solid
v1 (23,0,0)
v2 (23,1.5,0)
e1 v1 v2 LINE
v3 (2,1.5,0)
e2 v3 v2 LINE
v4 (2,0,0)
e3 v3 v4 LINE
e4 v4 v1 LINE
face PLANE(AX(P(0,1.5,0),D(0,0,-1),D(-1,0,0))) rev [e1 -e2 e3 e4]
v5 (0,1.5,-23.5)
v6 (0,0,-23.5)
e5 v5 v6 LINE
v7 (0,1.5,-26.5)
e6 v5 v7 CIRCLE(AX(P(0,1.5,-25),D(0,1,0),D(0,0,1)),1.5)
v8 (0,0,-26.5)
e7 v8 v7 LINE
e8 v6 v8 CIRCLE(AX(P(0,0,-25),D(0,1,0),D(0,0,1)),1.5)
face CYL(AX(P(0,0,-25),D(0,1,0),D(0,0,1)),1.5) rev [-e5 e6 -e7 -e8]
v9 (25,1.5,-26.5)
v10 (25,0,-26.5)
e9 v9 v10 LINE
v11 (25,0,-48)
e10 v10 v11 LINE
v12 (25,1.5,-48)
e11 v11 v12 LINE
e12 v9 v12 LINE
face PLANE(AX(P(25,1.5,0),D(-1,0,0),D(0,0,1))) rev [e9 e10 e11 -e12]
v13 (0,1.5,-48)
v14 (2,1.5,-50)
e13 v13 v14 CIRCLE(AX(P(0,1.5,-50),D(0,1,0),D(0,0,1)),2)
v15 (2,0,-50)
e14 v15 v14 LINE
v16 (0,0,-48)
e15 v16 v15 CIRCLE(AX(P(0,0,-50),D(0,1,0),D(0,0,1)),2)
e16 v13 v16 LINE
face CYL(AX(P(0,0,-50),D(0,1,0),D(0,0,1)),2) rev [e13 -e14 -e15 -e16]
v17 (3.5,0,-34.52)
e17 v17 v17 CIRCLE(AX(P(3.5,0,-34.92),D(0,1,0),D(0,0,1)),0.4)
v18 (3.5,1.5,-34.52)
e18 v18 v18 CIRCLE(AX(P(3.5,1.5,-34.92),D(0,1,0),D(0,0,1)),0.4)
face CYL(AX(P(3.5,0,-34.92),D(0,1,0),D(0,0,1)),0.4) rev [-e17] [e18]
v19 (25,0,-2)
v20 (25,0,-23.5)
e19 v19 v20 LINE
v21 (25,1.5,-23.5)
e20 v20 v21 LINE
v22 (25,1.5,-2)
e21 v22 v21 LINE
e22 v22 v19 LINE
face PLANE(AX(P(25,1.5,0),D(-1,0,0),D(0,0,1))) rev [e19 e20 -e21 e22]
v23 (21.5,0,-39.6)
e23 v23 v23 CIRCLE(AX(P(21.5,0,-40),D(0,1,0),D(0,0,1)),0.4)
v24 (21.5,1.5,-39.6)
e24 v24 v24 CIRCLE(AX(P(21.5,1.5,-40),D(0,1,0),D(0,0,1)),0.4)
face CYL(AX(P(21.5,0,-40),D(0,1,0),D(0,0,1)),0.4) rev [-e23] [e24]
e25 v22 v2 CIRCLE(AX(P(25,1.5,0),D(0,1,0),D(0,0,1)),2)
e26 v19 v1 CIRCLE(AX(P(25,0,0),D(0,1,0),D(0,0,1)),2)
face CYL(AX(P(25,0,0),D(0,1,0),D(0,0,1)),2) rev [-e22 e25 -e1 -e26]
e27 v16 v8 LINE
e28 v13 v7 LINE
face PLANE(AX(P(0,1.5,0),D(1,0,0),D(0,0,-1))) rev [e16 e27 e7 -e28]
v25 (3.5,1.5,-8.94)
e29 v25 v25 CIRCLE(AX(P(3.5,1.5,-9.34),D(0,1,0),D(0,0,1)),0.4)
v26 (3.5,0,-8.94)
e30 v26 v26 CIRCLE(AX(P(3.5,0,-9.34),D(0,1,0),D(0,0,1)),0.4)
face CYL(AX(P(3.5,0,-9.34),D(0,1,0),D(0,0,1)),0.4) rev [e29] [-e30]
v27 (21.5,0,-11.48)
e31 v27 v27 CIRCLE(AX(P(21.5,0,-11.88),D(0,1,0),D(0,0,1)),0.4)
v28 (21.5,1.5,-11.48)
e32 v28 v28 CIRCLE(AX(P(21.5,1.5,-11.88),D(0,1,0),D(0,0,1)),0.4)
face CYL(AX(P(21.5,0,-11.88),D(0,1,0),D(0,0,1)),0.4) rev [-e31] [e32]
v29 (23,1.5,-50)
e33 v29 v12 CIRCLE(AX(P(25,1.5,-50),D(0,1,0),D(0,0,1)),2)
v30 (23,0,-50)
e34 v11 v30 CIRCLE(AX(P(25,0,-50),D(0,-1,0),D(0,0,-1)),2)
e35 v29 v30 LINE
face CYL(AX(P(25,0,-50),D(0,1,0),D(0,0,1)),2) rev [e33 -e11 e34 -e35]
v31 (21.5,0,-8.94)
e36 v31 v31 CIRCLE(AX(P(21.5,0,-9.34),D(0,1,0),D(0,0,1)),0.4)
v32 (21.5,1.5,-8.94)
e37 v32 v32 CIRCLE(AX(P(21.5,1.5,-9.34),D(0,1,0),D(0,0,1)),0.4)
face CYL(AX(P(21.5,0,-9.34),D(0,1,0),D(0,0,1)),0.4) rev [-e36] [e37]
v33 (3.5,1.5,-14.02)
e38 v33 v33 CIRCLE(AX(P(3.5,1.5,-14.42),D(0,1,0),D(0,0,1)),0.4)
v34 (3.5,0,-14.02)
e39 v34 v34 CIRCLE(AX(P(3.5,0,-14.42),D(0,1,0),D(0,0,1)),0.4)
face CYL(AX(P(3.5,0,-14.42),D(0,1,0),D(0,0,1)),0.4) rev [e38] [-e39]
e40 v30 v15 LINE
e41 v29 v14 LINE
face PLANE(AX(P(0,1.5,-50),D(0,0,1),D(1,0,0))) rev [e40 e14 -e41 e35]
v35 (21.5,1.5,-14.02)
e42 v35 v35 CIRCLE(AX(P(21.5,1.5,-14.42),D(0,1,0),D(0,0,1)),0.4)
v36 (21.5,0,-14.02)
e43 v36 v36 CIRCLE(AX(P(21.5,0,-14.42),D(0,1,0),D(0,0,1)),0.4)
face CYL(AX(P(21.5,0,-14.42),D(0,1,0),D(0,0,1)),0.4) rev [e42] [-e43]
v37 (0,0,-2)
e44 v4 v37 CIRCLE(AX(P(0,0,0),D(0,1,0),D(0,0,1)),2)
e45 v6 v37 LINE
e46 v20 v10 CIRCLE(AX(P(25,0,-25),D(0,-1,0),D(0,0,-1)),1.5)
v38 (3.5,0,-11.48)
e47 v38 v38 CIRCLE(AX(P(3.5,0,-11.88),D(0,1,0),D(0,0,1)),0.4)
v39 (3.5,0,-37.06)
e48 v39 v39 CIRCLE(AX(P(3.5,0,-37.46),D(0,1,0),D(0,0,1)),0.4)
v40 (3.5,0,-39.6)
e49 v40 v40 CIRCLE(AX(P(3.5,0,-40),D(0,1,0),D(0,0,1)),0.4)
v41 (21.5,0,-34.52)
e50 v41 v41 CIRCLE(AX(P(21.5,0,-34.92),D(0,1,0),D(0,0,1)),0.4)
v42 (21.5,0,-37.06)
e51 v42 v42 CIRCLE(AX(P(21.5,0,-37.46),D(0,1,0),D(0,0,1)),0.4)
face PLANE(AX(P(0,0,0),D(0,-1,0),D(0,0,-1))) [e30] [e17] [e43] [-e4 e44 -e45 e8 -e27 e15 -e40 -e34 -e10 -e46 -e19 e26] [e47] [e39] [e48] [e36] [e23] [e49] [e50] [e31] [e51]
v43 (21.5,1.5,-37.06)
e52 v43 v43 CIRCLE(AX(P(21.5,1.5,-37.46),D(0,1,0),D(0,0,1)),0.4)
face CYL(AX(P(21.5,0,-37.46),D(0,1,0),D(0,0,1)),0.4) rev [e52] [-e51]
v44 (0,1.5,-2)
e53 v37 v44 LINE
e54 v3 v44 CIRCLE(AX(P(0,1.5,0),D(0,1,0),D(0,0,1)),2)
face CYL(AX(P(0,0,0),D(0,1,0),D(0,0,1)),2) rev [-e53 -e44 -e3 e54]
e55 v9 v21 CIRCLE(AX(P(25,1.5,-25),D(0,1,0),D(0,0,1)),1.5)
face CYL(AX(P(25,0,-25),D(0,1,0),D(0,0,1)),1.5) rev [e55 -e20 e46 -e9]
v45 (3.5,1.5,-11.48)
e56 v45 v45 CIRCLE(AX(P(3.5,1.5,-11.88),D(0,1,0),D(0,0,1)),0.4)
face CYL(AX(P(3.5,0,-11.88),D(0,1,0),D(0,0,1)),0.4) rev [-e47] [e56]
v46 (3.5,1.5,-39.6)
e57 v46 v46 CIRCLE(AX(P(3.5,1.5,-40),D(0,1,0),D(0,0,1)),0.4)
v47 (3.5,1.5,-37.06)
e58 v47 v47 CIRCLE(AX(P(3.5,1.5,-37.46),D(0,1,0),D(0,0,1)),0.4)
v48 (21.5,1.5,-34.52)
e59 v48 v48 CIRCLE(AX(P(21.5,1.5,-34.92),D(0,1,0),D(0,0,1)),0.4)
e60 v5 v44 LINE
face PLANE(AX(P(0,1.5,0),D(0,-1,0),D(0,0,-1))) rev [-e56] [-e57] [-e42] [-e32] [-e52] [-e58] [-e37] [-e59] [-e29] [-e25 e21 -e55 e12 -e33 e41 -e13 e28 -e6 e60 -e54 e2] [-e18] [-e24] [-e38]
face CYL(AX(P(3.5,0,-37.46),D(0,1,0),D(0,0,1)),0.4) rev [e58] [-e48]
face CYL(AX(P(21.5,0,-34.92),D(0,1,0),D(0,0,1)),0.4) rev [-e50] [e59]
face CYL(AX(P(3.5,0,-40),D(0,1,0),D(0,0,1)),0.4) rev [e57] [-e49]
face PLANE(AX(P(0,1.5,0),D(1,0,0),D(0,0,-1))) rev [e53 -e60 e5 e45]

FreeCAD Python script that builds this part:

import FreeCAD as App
import Part
import Sketcher
from FreeCAD import Vector

doc = App.newDocument("Part")
body = doc.addObject("PartDesign::Body", "Body")

sketch1 = body.newObject("Sketcher::SketchObject", "Sketch")
sketch1.AttachmentSupport = (doc.getObject("XZ_Plane"), [""])
sketch1.MapMode = "FlatFace"
sketch1.addGeometry([
    Part.LineSegment(Vector(0, -50, 0), Vector(0, 0, 0)),
    Part.LineSegment(Vector(0, 0, 0), Vector(25, 0, 0)),
    Part.LineSegment(Vector(25, 0, 0), Vector(25, -50, 0)),
    Part.LineSegment(Vector(25, -50, 0), Vector(0, -50, 0)),
], False)
sketch1.addConstraint([
    Sketcher.Constraint("Coincident", 0, 2, 1, 1),
    Sketcher.Constraint("Coincident", 1, 2, 2, 1),
    Sketcher.Constraint("Coincident", 2, 2, 3, 1),
    Sketcher.Constraint("Coincident", 3, 2, 0, 1),
    Sketcher.Constraint("Vertical", 0),
    Sketcher.Constraint("Horizontal", 1),
    Sketcher.Constraint("Vertical", 2),
    Sketcher.Constraint("Horizontal", 3),
    Sketcher.Constraint("Coincident", 0, 2, -1, 1),
    Sketcher.Constraint("DistanceX", 1, 1, 1, 2, 25.0),
    Sketcher.Constraint("DistanceY", 0, 1, 0, 2, 50.0),
])
pad1 = body.newObject("PartDesign::Pad", "Pad")
pad1.Profile = sketch1
pad1.Length = 1.5
pad1.Reversed = True

sketch2 = body.newObject("Sketcher::SketchObject", "Sketch001")
sketch2.AttachmentSupport = (doc.getObject("XZ_Plane"), [""])
sketch2.MapMode = "FlatFace"
sketch2.AttachmentOffset = App.Placement(Vector(0, 0, -1.5), App.Rotation())
sketch2.addGeometry([
    Part.Circle(Vector(25, -25, 0), Vector(0, 0, 1), 1.5),
    Part.Circle(Vector(0, -25, 0), Vector(0, 0, 1), 1.5),
    Part.Circle(Vector(25, 0, 0), Vector(0, 0, 1), 2),
    Part.Circle(Vector(0, 0, 0), Vector(0, 0, 1), 2),
    Part.Circle(Vector(0, -50, 0), Vector(0, 0, 1), 2),
    Part.Circle(Vector(25, -50, 0), Vector(0, 0, 1), 2),
    Part.Circle(Vector(3.5, -40, 0), Vector(0, 0, 1), 0.4),
    Part.Circle(Vector(3.5, -37.46, 0), Vector(0, 0, 1), 0.4),
    Part.Circle(Vector(3.5, -34.92, 0), Vector(0, 0, 1), 0.4),
    Part.Circle(Vector(3.5, -14.42, 0), Vector(0, 0, 1), 0.4),
    Part.Circle(Vector(3.5, -11.88, 0), Vector(0, 0, 1), 0.4),
    Part.Circle(Vector(3.5, -9.34, 0), Vector(0, 0, 1), 0.4),
    Part.Circle(Vector(21.5, -40, 0), Vector(0, 0, 1), 0.4),
    Part.Circle(Vector(21.5, -37.46, 0), Vector(0, 0, 1), 0.4),
    Part.Circle(Vector(21.5, -34.92, 0), Vector(0, 0, 1), 0.4),
    Part.Circle(Vector(21.5, -14.42, 0), Vector(0, 0, 1), 0.4),
    Part.Circle(Vector(21.5, -11.88, 0), Vector(0, 0, 1), 0.4),
    Part.Circle(Vector(21.5, -9.34, 0), Vector(0, 0, 1), 0.4),
], False)
sketch2.addConstraint([
    Sketcher.Constraint("Coincident", 3, 3, -1, 1),
    Sketcher.Constraint("Equal", 0, 1),
    Sketcher.Constraint("Equal", 2, 3),
    Sketcher.Constraint("Equal", 3, 4),
    Sketcher.Constraint("Equal", 4, 5),
    Sketcher.Constraint("Equal", 6, 7),
    Sketcher.Constraint("Equal", 7, 8),
    Sketcher.Constraint("Equal", 8, 9),
    Sketcher.Constraint("Equal", 9, 10),
    Sketcher.Constraint("Equal", 10, 11),
    Sketcher.Constraint("Equal", 11, 12),
    Sketcher.Constraint("Equal", 12, 13),
    Sketcher.Constraint("Equal", 13, 14),
    Sketcher.Constraint("Equal", 14, 15),
    Sketcher.Constraint("Equal", 15, 16),
    Sketcher.Constraint("Equal", 16, 17),
    Sketcher.Constraint("PointOnObject", 1, 3, -2),
    Sketcher.Constraint("PointOnObject", 2, 3, -1),
    Sketcher.Constraint("PointOnObject", 4, 3, -2),
    Sketcher.Constraint("Horizontal", 0, 3, 1, 3),
    Sketcher.Constraint("Horizontal", 4, 3, 5, 3),
    Sketcher.Constraint("Horizontal", 6, 3, 12, 3),
    Sketcher.Constraint("Horizontal", 7, 3, 13, 3),
    Sketcher.Constraint("Horizontal", 8, 3, 14, 3),
    Sketcher.Constraint("Horizontal", 9, 3, 15, 3),
    Sketcher.Constraint("Horizontal", 10, 3, 16, 3),
    Sketcher.Constraint("Horizontal", 11, 3, 17, 3),
    Sketcher.Constraint("Vertical", 0, 3, 2, 3),
    Sketcher.Constraint("Vertical", 2, 3, 5, 3),
    Sketcher.Constraint("Vertical", 6, 3, 7, 3),
    Sketcher.Constraint("Vertical", 7, 3, 8, 3),
    Sketcher.Constraint("Vertical", 8, 3, 9, 3),
    Sketcher.Constraint("Vertical", 9, 3, 10, 3),
    Sketcher.Constraint("Vertical", 10, 3, 11, 3),
    Sketcher.Constraint("Vertical", 12, 3, 13, 3),
    Sketcher.Constraint("Vertical", 13, 3, 14, 3),
    Sketcher.Constraint("Vertical", 14, 3, 15, 3),
    Sketcher.Constraint("Vertical", 15, 3, 16, 3),
    Sketcher.Constraint("Vertical", 16, 3, 17, 3),
    Sketcher.Constraint("Diameter", 0, 3.0),
    Sketcher.Constraint("Diameter", 2, 4.0),
    Sketcher.Constraint("Diameter", 6, 0.8),
    Sketcher.Constraint("DistanceX", -1, 1, 0, 3, 25.0),
    Sketcher.Constraint("DistanceY", 0, 3, -1, 1, 25.0),
    Sketcher.Constraint("DistanceY", 4, 3, -1, 1, 50.0),
    Sketcher.Constraint("DistanceY", 6, 3, -1, 1, 40.0),
    Sketcher.Constraint("DistanceX", 6, 3, 12, 3, 18.0),
    Sketcher.Constraint("DistanceX", -1, 1, 6, 3, 3.5),
    Sketcher.Constraint("DistanceY", 8, 3, 9, 3, 20.5),
    Sketcher.Constraint("DistanceY", 7, 3, -1, 1, 37.46),
    Sketcher.Constraint("DistanceY", 8, 3, -1, 1, 34.92),
    Sketcher.Constraint("DistanceY", 10, 3, -1, 1, 11.88),
    Sketcher.Constraint("DistanceY", 11, 3, -1, 1, 9.34),
])
pocket1 = body.newObject("PartDesign::Pocket", "Pocket")
pocket1.Profile = sketch2
pocket1.Type = "ThroughAll"
pocket1.Reversed = True

doc.recompute()
